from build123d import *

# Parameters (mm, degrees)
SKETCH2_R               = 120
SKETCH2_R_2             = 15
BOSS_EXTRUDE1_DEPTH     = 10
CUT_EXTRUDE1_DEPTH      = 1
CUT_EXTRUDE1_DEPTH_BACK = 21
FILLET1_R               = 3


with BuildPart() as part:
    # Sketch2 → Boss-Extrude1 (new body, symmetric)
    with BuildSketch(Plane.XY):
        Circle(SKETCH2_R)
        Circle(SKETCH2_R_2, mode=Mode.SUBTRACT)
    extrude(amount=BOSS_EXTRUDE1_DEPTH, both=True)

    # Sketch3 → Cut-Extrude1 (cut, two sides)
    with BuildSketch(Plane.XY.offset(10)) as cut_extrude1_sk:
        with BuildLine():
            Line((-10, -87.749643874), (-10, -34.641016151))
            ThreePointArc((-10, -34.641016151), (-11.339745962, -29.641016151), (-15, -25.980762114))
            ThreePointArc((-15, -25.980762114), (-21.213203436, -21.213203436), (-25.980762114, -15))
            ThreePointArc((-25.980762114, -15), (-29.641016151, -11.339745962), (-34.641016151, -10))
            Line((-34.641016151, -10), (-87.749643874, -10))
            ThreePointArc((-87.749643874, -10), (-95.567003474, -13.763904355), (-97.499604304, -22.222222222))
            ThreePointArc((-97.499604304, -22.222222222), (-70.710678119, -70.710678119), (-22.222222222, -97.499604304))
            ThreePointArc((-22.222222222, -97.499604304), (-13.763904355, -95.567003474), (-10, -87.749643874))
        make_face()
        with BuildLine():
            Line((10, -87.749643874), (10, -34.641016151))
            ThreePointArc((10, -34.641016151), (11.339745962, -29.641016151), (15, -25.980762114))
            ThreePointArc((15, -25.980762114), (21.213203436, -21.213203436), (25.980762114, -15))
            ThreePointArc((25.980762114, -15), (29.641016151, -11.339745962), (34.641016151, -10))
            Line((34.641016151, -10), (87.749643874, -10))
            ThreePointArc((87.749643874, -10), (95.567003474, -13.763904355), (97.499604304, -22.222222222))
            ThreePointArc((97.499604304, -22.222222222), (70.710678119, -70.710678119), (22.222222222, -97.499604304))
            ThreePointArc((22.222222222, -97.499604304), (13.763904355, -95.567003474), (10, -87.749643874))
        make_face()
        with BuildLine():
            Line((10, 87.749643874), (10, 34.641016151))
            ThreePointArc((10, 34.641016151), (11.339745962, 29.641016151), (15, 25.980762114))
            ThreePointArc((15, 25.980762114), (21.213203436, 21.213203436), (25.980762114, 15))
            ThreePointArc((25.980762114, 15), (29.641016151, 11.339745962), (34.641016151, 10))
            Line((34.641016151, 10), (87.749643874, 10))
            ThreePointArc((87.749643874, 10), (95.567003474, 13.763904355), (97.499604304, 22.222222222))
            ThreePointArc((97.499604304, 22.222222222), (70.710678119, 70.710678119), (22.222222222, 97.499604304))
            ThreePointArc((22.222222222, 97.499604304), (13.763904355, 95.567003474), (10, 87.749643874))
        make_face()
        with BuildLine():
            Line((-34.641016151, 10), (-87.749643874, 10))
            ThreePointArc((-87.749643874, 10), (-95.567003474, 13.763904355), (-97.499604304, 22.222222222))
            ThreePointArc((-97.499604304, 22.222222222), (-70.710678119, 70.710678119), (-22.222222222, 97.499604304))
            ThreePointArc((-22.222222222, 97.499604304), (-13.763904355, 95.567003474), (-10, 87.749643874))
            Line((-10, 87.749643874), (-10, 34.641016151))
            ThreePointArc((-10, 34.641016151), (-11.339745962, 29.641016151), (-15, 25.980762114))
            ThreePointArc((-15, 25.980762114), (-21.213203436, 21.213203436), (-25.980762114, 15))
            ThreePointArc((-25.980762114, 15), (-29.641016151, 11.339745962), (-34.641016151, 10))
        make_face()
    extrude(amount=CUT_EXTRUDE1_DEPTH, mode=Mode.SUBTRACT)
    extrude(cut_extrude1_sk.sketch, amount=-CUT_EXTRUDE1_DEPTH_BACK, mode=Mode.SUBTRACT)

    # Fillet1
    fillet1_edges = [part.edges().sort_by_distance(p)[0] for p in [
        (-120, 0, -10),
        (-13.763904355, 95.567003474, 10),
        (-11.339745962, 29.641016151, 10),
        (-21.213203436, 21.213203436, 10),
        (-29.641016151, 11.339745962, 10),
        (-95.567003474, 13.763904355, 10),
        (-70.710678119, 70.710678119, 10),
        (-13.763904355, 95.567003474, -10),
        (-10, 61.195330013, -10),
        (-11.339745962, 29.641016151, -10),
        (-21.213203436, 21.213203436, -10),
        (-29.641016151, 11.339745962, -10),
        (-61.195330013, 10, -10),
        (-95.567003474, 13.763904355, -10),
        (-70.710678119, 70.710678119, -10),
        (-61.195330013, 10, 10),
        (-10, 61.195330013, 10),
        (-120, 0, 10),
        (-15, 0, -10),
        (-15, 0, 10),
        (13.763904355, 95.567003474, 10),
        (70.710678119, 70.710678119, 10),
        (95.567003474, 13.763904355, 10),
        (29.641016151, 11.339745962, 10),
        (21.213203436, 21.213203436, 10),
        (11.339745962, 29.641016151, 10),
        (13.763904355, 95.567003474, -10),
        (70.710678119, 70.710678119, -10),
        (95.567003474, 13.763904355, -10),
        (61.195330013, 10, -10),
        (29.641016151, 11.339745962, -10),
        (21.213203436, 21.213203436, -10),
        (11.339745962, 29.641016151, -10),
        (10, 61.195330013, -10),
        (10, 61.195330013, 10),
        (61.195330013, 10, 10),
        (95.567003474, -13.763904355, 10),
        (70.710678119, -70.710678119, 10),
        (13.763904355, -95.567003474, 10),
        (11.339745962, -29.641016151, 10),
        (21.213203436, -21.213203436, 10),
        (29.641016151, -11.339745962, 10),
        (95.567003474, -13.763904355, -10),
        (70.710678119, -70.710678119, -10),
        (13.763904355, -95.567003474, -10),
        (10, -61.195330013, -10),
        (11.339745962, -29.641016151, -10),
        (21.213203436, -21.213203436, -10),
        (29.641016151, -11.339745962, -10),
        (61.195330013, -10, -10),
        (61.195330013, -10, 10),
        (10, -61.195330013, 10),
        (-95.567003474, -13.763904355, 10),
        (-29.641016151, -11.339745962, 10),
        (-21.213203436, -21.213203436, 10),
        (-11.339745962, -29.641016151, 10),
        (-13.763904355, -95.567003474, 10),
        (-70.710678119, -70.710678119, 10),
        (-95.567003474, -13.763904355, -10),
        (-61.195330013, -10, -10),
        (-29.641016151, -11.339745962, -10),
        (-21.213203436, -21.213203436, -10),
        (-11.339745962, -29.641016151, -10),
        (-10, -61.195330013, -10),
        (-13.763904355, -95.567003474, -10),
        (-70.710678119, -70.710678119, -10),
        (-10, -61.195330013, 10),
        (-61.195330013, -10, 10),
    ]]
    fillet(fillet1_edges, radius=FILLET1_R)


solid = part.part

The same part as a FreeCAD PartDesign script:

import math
import FreeCAD as App
import Part
import Sketcher

V = App.Vector


def edges_at(feature, points):
    """Names of the edges that pass closest to the given points."""
    edges = feature.Shape.Edges
    near = lambda p: min(range(len(edges)), key=lambda i: edges[i].distToShape(Part.Vertex(*p))[0])
    return sorted({f"Edge{near(p) + 1}" for p in points})

doc = App.newDocument("Part")
params = doc.addObject("Spreadsheet::Sheet", "Params")
for row, (alias, value) in enumerate([
    ("sketch1_diameter", "240 mm"),
    ("sketch1_diameter2", "30 mm"),
    ("pad1_length", "20 mm"),
    ("sketch2_radius", "10 mm"),
    ("sketch2_radius2", "30 mm"),
    ("sketch2_radius3", "100 mm"),
    ("fillet_radius", "3 mm"),
], start=1):
    params.set(f"A{row}", alias)
    params.set(f"B{row}", "=" + value)
    params.setAlias(f"B{row}", alias)

body = doc.addObject("PartDesign::Body", "Body")

# Sketch on XY plane
sketch1 = body.newObject("Sketcher::SketchObject", "Sketch")
sketch1.AttachmentSupport = (doc.getObject("XY_Plane"), [""])
sketch1.MapMode = "FlatFace"
sketch1.addGeometry([
    Part.Circle(V(0, 0, 0), V(0, 0, 1), 120),
    Part.Circle(V(0, 0, 0), V(0, 0, 1), 15),
], False)
sketch1.addConstraint([
    Sketcher.Constraint("Coincident", 0, 3, -1, 1),
    Sketcher.Constraint("Coincident", 1, 3, -1, 1),
    Sketcher.Constraint("Diameter", 0, 240.0),
    Sketcher.Constraint("Diameter", 1, 30.0),
])
sketch1.setExpression("Constraints[2]", "Params.sketch1_diameter")
sketch1.setExpression("Constraints[3]", "Params.sketch1_diameter2")
pad1 = body.newObject("PartDesign::Pad", "Pad")
pad1.Profile = sketch1
pad1.setExpression("Length", "Params.pad1_length")
pad1.Midplane = True

# Sketch on XY plane
sketch2 = body.newObject("Sketcher::SketchObject", "Sketch001")
sketch2.AttachmentSupport = (doc.getObject("XY_Plane"), [""])
sketch2.MapMode = "FlatFace"
sketch2.AttachmentOffset = App.Placement(V(0, 0, 10), App.Rotation())
sketch2.addGeometry([
    Part.LineSegment(V(-10, -87.749644, 0), V(-10, -34.641016, 0)),  # 0
    Part.ArcOfCircle(Part.Circle(V(-20, -34.641016, 0), V(0, 0, 1), 10), math.radians(0), math.radians(60)),  # 1
    Part.ArcOfCircle(Part.Circle(V(0, 0, 0), V(0, 0, 1), 30), math.radians(-150), math.radians(-120)),  # 2
    Part.ArcOfCircle(Part.Circle(V(-34.641016, -20, 0), V(0, 0, 1), 10), math.radians(30), math.radians(90)),  # 3
    Part.LineSegment(V(-34.641016, -10, 0), V(-87.749644, -10, 0)),  # 4
    Part.ArcOfCircle(Part.Circle(V(-87.749644, -20, 0), V(0, 0, 1), 10), math.radians(90), math.radians(192.839588)),  # 5
    Part.ArcOfCircle(Part.Circle(V(0, 0, 0), V(0, 0, 1), 100), math.radians(-167.160412), math.radians(-102.839588)),  # 6
    Part.ArcOfCircle(Part.Circle(V(-20, -87.749644, 0), V(0, 0, 1), 10), math.radians(-102.839588), math.radians(0)),  # 7
    Part.LineSegment(V(10, -34.641016, 0), V(10, -87.749644, 0)),  # 8
    Part.ArcOfCircle(Part.Circle(V(20, -87.749644, 0), V(0, 0, 1), 10), math.radians(180), math.radians(282.839588)),  # 9
    Part.ArcOfCircle(Part.Circle(V(0, 0, 0), V(0, 0, 1), 100), math.radians(-77.160412), math.radians(-12.839588)),  # 10
    Part.ArcOfCircle(Part.Circle(V(87.749644, -20, 0), V(0, 0, 1), 10), math.radians(-12.839588), math.radians(90)),  # 11
    Part.LineSegment(V(87.749644, -10, 0), V(34.641016, -10, 0)),  # 12
    Part.ArcOfCircle(Part.Circle(V(34.641016, -20, 0), V(0, 0, 1), 10), math.radians(90), math.radians(150)),  # 13
    Part.ArcOfCircle(Part.Circle(V(0, 0, 0), V(0, 0, 1), 30), math.radians(-60), math.radians(-30)),  # 14
    Part.ArcOfCircle(Part.Circle(V(20, -34.641016, 0), V(0, 0, 1), 10), math.radians(120), math.radians(180)),  # 15
    Part.LineSegment(V(10, 87.749644, 0), V(10, 34.641016, 0)),  # 16
    Part.ArcOfCircle(Part.Circle(V(20, 34.641016, 0), V(0, 0, 1), 10), math.radians(180), math.radians(240)),  # 17
    Part.ArcOfCircle(Part.Circle(V(0, 0, 0), V(0, 0, 1), 30), math.radians(30), math.radians(60)),  # 18
    Part.ArcOfCircle(Part.Circle(V(34.641016, 20, 0), V(0, 0, 1), 10), math.radians(-150), math.radians(-90)),  # 19
    Part.LineSegment(V(34.641016, 10, 0), V(87.749644, 10, 0)),  # 20
    Part.ArcOfCircle(Part.Circle(V(87.749644, 20, 0), V(0, 0, 1), 10), math.radians(-90), math.radians(12.839588)),  # 21
    Part.ArcOfCircle(Part.Circle(V(0, 0, 0), V(0, 0, 1), 100), math.radians(12.839588), math.radians(77.160412)),  # 22
    Part.ArcOfCircle(Part.Circle(V(20, 87.749644, 0), V(0, 0, 1), 10), math.radians(77.160412), math.radians(180)),  # 23
    Part.LineSegment(V(-87.749644, 10, 0), V(-34.641016, 10, 0)),  # 24
    Part.ArcOfCircle(Part.Circle(V(-34.641016, 20, 0), V(0, 0, 1), 10), math.radians(-90), math.radians(-30)),  # 25
    Part.ArcOfCircle(Part.Circle(V(0, 0, 0), V(0, 0, 1), 30), math.radians(120), math.radians(150)),  # 26
    Part.ArcOfCircle(Part.Circle(V(-20, 34.641016, 0), V(0, 0, 1), 10), math.radians(-60), math.radians(0)),  # 27
    Part.LineSegment(V(-10, 34.641016, 0), V(-10, 87.749644, 0)),  # 28
    Part.ArcOfCircle(Part.Circle(V(-20, 87.749644, 0), V(0, 0, 1), 10), math.radians(0), math.radians(102.839588)),  # 29
    Part.ArcOfCircle(Part.Circle(V(0, 0, 0), V(0, 0, 1), 100), math.radians(102.839588), math.radians(167.160412)),  # 30
    Part.ArcOfCircle(Part.Circle(V(-87.749644, 20, 0), V(0, 0, 1), 10), math.radians(167.160412), math.radians(270)),  # 31
], False)
sketch2.addConstraint([
    Sketcher.Constraint("Tangent", 0, 2, 1, 1),
    Sketcher.Constraint("Tangent", 1, 2, 2, 2),
    Sketcher.Constraint("Tangent", 2, 1, 3, 1),
    Sketcher.Constraint("Tangent", 3, 2, 4, 1),
    Sketcher.Constraint("Tangent", 4, 2, 5, 1),
    Sketcher.Constraint("Tangent", 5, 2, 6, 1),
    Sketcher.Constraint("Tangent", 6, 2, 7, 1),
    Sketcher.Constraint("Tangent", 7, 2, 0, 1),
    Sketcher.Constraint("Tangent", 8, 2, 9, 1),
    Sketcher.Constraint("Tangent", 9, 2, 10, 1),
    Sketcher.Constraint("Tangent", 10, 2, 11, 1),
    Sketcher.Constraint("Tangent", 11, 2, 12, 1),
    Sketcher.Constraint("Tangent", 12, 2, 13, 1),
    Sketcher.Constraint("Tangent", 13, 2, 14, 2),
    Sketcher.Constraint("Tangent", 14, 1, 15, 1),
    Sketcher.Constraint("Tangent", 15, 2, 8, 1),
    Sketcher.Constraint("Tangent", 16, 2, 17, 1),
    Sketcher.Constraint("Tangent", 17, 2, 18, 2),
    Sketcher.Constraint("Tangent", 18, 1, 19, 1),
    Sketcher.Constraint("Tangent", 19, 2, 20, 1),
    Sketcher.Constraint("Tangent", 20, 2, 21, 1),
    Sketcher.Constraint("Tangent", 21, 2, 22, 1),
    Sketcher.Constraint("Tangent", 22, 2, 23, 1),
    Sketcher.Constraint("Tangent", 23, 2, 16, 1),
    Sketcher.Constraint("Tangent", 24, 2, 25, 1),
    Sketcher.Constraint("Tangent", 25, 2, 26, 2),
    Sketcher.Constraint("Tangent", 26, 1, 27, 1),
    Sketcher.Constraint("Tangent", 27, 2, 28, 1),
    Sketcher.Constraint("Tangent", 28, 2, 29, 1),
    Sketcher.Constraint("Tangent", 29, 2, 30, 1),
    Sketcher.Constraint("Tangent", 30, 2, 31, 1),
    Sketcher.Constraint("Tangent", 31, 2, 24, 1),
    Sketcher.Constraint("Vertical", 0),
    Sketcher.Constraint("Horizontal", 4),
    Sketcher.Constraint("Vertical", 8),
    Sketcher.Constraint("Horizontal", 12),
    Sketcher.Constraint("Vertical", 16),
    Sketcher.Constraint("Horizontal", 20),
    Sketcher.Constraint("Horizontal", 24),
    Sketcher.Constraint("Vertical", 28),
    Sketcher.Constraint("Coincident", 2, 3, -1, 1),
    Sketcher.Constraint("Coincident", 6, 3, -1, 1),
    Sketcher.Constraint("Coincident", 10, 3, -1, 1),
    Sketcher.Constraint("Coincident", 14, 3, -1, 1),
    Sketcher.Constraint("Coincident", 18, 3, -1, 1),
    Sketcher.Constraint("Coincident", 22, 3, -1, 1),
    Sketcher.Constraint("Coincident", 26, 3, -1, 1),
    Sketcher.Constraint("Coincident", 30, 3, -1, 1),
    Sketcher.Constraint("Equal", 1, 3),
    Sketcher.Constraint("Equal", 3, 5),
    Sketcher.Constraint("Equal", 5, 7),
    Sketcher.Constraint("Equal", 7, 9),
    Sketcher.Constraint("Equal", 6, 10),
    Sketcher.Constraint("Equal", 9, 11),
    Sketcher.Constraint("Equal", 11, 13),
    Sketcher.Constraint("Equal", 2, 14),
    Sketcher.Constraint("Equal", 13, 15),
    Sketcher.Constraint("Equal", 15, 17),
    Sketcher.Constraint("Equal", 14, 18),
    Sketcher.Constraint("Equal", 17, 19),
    Sketcher.Constraint("Equal", 19, 21),
    Sketcher.Constraint("Equal", 10, 22),
    Sketcher.Constraint("Equal", 21, 23),
    Sketcher.Constraint("Equal", 23, 25),
    Sketcher.Constraint("Equal", 18, 26),
    Sketcher.Constraint("Equal", 25, 27),
    Sketcher.Constraint("Equal", 27, 29),
    Sketcher.Constraint("Equal", 22, 30),
    Sketcher.Constraint("Equal", 29, 31),
    Sketcher.Constraint("Horizontal", 7, 3, 9, 3),
    Sketcher.Constraint("Horizontal", 5, 3, 11, 3),
    Sketcher.Constraint("Horizontal", 21, 3, 25, 3),
    Sketcher.Constraint("Horizontal", 17, 3, 27, 3),
    Sketcher.Constraint("Vertical", 15, 3, 17, 3),
    Sketcher.Constraint("Vertical", 13, 3, 19, 3),
    Sketcher.Constraint("Equal", 24, 0),
    Sketcher.Constraint("Radius", 1, 10.0),
    Sketcher.Constraint("Radius", 2, 30.0),
    Sketcher.Constraint("Radius", 6, 100.0),
    Sketcher.Constraint("DistanceX", 1, 3, -1, 1, 20.0),
])
sketch2.setExpression("Constraints[76]", "Params.sketch2_radius")
sketch2.setExpression("Constraints[77]", "Params.sketch2_radius2")
sketch2.setExpression("Constraints[78]", "Params.sketch2_radius3")
pocket1 = body.newObject("PartDesign::Pocket", "Pocket")
pocket1.Profile = sketch2
pocket1.Type = "ThroughAll"
pocket1.Midplane = True
doc.recompute()

fillet = body.newObject("PartDesign::Fillet", "Fillet")
fillet.Base = (pocket1, edges_at(pocket1, [
    (-120, 0, -10),
    (-13.764, 95.567, 10),
    (-11.34, 29.641, 10),
    (-21.213, 21.213, 10),
    (-29.641, 11.34, 10),
    (-95.567, 13.764, 10),
    (-70.711, 70.711, 10),
    (-13.764, 95.567, -10),
    (-10, 61.195, -10),
    (-11.34, 29.641, -10),
    (-21.213, 21.213, -10),
    (-29.641, 11.34, -10),
    (-61.195, 10, -10),
    (-95.567, 13.764, -10),
    (-70.711, 70.711, -10),
    (-61.195, 10, 10),
    (-10, 61.195, 10),
    (-120, 0, 10),
    (-15, 0, -10),
    (-15, 0, 10),
    (13.764, 95.567, 10),
    (70.711, 70.711, 10),
    (95.567, 13.764, 10),
    (29.641, 11.34, 10),
    (21.213, 21.213, 10),
    (11.34, 29.641, 10),
    (13.764, 95.567, -10),
    (70.711, 70.711, -10),
    (95.567, 13.764, -10),
    (61.195, 10, -10),
    (29.641, 11.34, -10),
    (21.213, 21.213, -10),
    (11.34, 29.641, -10),
    (10, 61.195, -10),
    (10, 61.195, 10),
    (61.195, 10, 10),
    (95.567, -13.764, 10),
    (70.711, -70.711, 10),
    (13.764, -95.567, 10),
    (11.34, -29.641, 10),
    (21.213, -21.213, 10),
    (29.641, -11.34, 10),
    (95.567, -13.764, -10),
    (70.711, -70.711, -10),
    (13.764, -95.567, -10),
    (10, -61.195, -10),
    (11.34, -29.641, -10),
    (21.213, -21.213, -10),
    (29.641, -11.34, -10),
    (61.195, -10, -10),
    (61.195, -10, 10),
    (10, -61.195, 10),
    (-95.567, -13.764, 10),
    (-29.641, -11.34, 10),
    (-21.213, -21.213, 10),
    (-11.34, -29.641, 10),
    (-13.764, -95.567, 10),
    (-70.711, -70.711, 10),
    (-95.567, -13.764, -10),
    (-61.195, -10, -10),
    (-29.641, -11.34, -10),
    (-21.213, -21.213, -10),
    (-11.34, -29.641, -10),
    (-10, -61.195, -10),
    (-13.764, -95.567, -10),
    (-70.711, -70.711, -10),
    (-10, -61.195, 10),
    (-61.195, -10, 10),
]))
fillet.setExpression("Radius", "Params.fillet_radius")

doc.recompute()
